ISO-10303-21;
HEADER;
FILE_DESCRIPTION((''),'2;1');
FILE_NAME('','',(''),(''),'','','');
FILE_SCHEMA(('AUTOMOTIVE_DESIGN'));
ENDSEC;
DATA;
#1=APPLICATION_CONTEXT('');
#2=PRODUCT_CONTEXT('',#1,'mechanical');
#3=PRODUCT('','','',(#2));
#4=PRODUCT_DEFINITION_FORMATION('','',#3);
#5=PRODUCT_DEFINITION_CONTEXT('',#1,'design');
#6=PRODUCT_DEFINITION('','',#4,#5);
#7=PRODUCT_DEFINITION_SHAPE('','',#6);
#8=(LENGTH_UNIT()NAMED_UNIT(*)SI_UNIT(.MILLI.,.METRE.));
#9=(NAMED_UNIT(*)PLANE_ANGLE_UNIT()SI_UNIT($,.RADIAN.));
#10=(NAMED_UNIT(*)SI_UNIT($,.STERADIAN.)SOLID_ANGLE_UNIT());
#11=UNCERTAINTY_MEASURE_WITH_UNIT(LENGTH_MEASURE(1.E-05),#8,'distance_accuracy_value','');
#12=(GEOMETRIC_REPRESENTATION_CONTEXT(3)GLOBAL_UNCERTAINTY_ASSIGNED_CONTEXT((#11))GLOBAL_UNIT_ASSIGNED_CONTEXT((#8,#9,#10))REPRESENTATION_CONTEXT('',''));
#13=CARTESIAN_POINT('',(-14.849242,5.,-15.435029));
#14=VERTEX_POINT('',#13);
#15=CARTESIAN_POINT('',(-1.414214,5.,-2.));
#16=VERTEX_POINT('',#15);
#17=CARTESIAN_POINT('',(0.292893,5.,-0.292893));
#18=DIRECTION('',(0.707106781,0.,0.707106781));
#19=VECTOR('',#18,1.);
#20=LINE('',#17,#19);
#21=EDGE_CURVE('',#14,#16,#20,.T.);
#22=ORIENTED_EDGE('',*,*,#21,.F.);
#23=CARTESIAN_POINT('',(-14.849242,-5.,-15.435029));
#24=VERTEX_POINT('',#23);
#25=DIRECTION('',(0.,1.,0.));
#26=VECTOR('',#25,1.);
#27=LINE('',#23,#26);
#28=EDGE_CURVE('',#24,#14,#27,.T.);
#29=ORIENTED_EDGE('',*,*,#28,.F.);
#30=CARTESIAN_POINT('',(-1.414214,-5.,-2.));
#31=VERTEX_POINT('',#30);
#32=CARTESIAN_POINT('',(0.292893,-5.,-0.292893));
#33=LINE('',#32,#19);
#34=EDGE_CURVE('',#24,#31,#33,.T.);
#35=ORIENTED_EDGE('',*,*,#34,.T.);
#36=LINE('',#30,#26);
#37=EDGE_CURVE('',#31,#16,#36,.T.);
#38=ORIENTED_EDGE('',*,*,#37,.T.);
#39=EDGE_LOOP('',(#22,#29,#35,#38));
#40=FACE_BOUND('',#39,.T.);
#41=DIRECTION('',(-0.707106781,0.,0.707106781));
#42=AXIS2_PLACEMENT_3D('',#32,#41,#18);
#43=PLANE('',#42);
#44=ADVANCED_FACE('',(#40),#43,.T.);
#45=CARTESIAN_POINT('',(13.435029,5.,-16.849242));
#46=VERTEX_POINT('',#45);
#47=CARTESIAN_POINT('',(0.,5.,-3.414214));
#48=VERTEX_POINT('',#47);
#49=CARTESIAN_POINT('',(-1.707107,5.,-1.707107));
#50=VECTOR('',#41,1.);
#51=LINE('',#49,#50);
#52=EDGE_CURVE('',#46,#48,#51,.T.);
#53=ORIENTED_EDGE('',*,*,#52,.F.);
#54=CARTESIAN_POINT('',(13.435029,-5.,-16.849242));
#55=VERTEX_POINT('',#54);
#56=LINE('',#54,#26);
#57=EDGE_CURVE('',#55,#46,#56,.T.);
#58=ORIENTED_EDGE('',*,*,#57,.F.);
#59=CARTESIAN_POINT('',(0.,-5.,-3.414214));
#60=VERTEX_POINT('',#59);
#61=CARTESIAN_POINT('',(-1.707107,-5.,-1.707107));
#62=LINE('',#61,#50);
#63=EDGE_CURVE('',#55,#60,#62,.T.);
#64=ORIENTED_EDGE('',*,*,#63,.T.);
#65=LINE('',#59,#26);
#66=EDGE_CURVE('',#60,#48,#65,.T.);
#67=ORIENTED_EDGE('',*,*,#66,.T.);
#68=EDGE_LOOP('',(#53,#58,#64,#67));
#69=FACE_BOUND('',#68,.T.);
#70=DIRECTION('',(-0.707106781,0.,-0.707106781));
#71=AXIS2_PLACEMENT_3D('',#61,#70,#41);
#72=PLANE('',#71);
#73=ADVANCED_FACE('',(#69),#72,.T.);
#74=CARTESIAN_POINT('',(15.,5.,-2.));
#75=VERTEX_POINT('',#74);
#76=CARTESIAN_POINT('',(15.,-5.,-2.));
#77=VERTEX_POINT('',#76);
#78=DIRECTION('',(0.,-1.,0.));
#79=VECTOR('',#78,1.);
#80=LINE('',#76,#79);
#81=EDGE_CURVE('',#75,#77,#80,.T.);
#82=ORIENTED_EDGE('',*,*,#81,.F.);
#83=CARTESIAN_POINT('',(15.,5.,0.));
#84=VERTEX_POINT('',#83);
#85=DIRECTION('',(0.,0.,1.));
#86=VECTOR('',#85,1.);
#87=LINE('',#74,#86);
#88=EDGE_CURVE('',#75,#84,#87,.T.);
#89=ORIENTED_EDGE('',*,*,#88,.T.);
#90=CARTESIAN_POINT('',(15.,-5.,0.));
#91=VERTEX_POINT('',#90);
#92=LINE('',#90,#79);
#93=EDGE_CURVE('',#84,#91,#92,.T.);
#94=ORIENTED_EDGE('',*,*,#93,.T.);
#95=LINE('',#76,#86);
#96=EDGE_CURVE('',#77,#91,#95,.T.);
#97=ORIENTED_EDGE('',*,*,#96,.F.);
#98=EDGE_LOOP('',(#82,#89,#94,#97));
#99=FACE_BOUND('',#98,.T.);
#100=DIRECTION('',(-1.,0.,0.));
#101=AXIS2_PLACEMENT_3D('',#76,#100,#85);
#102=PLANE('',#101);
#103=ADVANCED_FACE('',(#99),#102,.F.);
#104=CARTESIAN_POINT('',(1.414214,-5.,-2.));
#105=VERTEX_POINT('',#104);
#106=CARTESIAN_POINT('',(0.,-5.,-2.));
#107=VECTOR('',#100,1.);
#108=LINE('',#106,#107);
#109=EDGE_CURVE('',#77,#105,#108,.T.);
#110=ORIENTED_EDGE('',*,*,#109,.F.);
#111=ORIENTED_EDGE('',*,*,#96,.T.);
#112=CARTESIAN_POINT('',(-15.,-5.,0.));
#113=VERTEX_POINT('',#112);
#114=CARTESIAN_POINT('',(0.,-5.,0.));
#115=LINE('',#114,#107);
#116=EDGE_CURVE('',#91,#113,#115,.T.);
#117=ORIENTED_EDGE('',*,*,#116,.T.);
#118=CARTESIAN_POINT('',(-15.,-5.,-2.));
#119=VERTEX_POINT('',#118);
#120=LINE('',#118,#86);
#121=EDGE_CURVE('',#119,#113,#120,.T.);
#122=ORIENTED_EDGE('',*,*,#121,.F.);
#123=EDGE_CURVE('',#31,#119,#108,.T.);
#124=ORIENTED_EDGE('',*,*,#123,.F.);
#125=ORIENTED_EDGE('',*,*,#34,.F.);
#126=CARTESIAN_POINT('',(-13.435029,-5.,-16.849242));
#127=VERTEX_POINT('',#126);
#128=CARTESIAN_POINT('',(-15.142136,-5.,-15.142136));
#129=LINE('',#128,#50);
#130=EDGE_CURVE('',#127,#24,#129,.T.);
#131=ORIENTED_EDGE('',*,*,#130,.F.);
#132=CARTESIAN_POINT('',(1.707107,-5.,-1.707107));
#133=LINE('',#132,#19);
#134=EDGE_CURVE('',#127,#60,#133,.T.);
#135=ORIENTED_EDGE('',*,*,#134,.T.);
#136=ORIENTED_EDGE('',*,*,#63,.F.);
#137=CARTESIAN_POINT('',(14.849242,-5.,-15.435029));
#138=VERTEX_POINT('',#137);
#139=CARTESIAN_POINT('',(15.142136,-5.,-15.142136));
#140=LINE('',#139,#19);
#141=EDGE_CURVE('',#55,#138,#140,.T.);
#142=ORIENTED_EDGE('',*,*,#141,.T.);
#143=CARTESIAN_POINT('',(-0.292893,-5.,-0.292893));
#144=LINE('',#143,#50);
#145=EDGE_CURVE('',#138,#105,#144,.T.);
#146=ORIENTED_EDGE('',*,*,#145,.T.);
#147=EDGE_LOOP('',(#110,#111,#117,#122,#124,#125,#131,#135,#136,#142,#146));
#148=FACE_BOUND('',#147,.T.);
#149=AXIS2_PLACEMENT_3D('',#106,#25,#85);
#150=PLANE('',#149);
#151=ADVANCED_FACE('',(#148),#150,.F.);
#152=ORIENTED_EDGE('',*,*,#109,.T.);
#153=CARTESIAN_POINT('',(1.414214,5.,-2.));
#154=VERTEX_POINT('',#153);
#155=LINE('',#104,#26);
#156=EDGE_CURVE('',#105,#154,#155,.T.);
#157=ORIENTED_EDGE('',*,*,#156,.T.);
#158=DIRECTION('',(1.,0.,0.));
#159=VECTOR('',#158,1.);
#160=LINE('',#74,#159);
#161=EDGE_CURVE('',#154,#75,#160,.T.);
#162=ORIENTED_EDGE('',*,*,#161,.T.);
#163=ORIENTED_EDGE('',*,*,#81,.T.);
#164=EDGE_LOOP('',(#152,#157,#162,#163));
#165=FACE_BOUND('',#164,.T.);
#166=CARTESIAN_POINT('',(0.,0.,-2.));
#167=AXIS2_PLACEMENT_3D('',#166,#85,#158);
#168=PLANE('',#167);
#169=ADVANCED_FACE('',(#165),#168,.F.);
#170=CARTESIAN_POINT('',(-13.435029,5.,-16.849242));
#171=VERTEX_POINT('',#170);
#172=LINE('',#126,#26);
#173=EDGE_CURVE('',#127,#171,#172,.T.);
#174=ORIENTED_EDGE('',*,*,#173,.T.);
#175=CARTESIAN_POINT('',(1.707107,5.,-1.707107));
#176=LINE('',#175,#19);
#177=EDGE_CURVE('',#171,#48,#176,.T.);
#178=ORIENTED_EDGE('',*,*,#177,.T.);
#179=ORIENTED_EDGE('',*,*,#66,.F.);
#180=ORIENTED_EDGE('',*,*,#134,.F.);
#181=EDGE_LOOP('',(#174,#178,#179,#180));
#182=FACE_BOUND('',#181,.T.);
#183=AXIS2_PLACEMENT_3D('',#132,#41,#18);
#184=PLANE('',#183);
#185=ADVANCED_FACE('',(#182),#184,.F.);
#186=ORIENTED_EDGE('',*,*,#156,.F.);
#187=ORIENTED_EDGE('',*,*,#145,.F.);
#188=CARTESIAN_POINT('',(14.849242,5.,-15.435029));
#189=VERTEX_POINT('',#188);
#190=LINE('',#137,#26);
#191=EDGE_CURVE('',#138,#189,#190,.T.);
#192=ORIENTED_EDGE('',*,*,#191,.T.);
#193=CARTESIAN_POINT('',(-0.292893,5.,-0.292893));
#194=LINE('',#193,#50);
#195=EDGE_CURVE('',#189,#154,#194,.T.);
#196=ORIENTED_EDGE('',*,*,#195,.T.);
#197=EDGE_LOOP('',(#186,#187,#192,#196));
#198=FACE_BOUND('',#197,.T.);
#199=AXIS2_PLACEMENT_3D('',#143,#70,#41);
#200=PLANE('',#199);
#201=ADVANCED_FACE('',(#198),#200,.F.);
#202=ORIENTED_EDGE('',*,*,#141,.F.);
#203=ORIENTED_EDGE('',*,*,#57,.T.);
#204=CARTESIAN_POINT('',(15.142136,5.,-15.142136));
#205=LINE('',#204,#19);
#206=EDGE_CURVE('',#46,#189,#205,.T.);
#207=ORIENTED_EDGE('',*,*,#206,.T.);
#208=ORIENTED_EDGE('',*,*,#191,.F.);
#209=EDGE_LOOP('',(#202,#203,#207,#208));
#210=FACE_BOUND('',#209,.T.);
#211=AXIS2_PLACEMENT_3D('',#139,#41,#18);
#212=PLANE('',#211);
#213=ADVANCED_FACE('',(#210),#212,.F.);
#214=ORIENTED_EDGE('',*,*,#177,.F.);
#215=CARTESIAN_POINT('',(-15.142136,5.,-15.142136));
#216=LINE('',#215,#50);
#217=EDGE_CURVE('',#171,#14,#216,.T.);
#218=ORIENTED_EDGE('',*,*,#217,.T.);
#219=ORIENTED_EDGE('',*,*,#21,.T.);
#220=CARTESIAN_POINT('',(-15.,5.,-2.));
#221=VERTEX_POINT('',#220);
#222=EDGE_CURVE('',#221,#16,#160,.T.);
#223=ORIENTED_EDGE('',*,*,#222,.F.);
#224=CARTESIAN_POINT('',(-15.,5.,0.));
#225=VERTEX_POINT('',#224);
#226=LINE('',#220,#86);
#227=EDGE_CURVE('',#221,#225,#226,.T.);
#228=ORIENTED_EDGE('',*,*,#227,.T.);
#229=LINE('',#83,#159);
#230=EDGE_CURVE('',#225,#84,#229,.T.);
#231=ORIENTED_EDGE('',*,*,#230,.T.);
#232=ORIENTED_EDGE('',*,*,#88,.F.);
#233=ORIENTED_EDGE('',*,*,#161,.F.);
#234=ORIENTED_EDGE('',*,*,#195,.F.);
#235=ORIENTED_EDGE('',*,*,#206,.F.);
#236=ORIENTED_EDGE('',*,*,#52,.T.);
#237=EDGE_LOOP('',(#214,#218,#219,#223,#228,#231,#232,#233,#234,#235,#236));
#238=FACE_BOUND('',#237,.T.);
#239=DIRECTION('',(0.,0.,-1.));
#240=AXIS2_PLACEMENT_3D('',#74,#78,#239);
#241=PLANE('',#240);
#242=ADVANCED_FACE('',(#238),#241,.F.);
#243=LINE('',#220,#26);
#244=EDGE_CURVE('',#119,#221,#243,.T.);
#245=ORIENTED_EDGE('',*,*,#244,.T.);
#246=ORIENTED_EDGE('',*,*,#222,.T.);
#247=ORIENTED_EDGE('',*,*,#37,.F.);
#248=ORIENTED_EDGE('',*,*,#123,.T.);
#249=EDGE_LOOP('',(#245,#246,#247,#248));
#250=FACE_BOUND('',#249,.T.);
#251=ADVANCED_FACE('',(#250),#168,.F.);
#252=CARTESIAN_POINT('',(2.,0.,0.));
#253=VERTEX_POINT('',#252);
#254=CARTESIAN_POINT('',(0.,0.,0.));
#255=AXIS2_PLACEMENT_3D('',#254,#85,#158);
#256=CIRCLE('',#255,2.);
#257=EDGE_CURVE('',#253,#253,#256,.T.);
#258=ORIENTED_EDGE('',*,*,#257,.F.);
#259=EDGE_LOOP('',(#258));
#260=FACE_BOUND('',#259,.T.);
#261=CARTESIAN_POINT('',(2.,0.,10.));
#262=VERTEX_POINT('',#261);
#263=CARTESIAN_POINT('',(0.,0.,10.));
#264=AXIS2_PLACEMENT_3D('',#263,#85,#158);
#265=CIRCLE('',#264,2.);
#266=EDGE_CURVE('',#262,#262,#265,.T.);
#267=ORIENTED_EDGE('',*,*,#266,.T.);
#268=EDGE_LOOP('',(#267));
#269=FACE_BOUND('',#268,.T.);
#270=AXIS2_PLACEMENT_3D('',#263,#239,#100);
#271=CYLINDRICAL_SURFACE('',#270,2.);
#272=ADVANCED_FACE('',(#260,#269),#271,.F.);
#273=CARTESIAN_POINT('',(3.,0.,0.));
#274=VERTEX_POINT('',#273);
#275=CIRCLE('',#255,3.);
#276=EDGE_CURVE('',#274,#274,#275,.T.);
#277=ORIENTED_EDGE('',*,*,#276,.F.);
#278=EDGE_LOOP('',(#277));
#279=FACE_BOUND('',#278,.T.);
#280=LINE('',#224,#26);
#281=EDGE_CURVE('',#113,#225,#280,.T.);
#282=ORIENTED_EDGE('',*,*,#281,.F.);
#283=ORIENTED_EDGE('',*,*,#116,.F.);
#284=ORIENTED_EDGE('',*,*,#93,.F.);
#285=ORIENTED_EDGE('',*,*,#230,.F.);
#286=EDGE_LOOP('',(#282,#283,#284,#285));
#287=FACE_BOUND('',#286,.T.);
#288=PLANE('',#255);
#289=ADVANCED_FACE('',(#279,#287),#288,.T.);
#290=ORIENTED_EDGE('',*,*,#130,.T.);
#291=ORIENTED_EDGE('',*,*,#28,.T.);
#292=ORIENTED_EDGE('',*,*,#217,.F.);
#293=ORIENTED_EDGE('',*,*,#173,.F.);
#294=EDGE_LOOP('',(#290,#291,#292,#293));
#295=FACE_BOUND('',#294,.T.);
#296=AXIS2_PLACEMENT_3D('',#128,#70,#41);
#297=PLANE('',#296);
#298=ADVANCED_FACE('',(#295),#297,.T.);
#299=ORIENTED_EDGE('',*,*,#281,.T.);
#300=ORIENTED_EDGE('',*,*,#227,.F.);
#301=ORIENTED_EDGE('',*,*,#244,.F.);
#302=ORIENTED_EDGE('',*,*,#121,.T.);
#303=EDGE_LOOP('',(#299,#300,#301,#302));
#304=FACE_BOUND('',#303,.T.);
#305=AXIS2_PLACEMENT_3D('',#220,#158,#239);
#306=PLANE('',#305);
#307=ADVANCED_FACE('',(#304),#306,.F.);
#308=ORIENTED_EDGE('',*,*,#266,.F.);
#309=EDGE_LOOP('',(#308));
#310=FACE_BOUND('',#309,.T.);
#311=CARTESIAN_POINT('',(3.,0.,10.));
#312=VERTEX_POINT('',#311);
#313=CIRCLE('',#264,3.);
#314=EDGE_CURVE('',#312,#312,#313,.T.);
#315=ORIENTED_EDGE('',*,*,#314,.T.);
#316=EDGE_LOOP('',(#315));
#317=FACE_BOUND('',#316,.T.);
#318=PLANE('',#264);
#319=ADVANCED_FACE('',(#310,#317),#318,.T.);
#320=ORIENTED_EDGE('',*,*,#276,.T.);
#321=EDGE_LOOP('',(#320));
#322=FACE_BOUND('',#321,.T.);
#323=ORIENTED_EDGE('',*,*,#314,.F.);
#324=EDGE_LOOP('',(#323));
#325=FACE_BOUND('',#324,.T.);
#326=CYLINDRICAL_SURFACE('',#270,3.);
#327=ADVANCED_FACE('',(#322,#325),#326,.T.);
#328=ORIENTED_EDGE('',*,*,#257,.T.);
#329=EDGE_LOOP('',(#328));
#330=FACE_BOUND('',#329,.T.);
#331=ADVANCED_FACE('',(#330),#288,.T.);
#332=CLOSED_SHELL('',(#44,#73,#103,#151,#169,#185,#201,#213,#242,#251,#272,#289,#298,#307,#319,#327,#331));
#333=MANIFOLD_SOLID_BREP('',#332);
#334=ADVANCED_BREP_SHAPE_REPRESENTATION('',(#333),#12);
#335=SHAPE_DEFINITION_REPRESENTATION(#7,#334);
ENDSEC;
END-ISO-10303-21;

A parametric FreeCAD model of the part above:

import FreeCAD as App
import Part
import Sketcher

doc = App.newDocument("Part")
body = doc.addObject("PartDesign::Body", "Body")

# Sketch on XY plane
sketch1 = doc.addObject("Sketcher::SketchObject", "Sketch")
body.addObject(sketch1)
sketch1.AttachmentSupport = (doc.XY_Plane, [""])
sketch1.MapMode = "FlatFace"
sketch1.addGeometry([
    Part.Circle(App.Vector(0, 0, 0), App.Vector(0, 0, 1), 3),
    Part.Circle(App.Vector(0, 0, 0), App.Vector(0, 0, 1), 2),
], False)
sketch1.addConstraint([
    Sketcher.Constraint("Coincident", 0, 3, -1, 1),
    Sketcher.Constraint("Coincident", 1, 3, -1, 1),
    Sketcher.Constraint("Diameter", 0, 6.0),
    Sketcher.Constraint("Diameter", 1, 4.0),
])
pad1 = doc.addObject("PartDesign::Pad", "Pad")
body.addObject(pad1)
pad1.Profile = sketch1
pad1.Length = 10

# Sketch on XY plane
sketch2 = doc.addObject("Sketcher::SketchObject", "Sketch001")
body.addObject(sketch2)
sketch2.AttachmentSupport = (doc.XY_Plane, [""])
sketch2.MapMode = "FlatFace"
sketch2.addGeometry([
    Part.LineSegment(App.Vector(-15, -5, 0), App.Vector(-15, 5, 0)),
    Part.LineSegment(App.Vector(-15, 5, 0), App.Vector(15, 5, 0)),
    Part.LineSegment(App.Vector(15, 5, 0), App.Vector(15, -5, 0)),
    Part.LineSegment(App.Vector(15, -5, 0), App.Vector(-15, -5, 0)),
], False)
sketch2.addConstraint([
    Sketcher.Constraint("Coincident", 0, 2, 1, 1),
    Sketcher.Constraint("Coincident", 1, 2, 2, 1),
    Sketcher.Constraint("Coincident", 2, 2, 3, 1),
    Sketcher.Constraint("Coincident", 3, 2, 0, 1),
    Sketcher.Constraint("Vertical", 0),
    Sketcher.Constraint("Horizontal", 1),
    Sketcher.Constraint("Vertical", 2),
    Sketcher.Constraint("Horizontal", 3),
    Sketcher.Constraint("Symmetric", 0, 2, 2, 2, -1, 1),
    Sketcher.Constraint("DistanceX", 1, 1, 1, 2, 30.0),
    Sketcher.Constraint("DistanceY", 0, 1, 0, 2, 10.0),
])
pad2 = doc.addObject("PartDesign::Pad", "Pad001")
body.addObject(pad2)
pad2.Profile = sketch2
pad2.Length = 2
pad2.Reversed = True

# Sketch on XZ plane
sketch3 = doc.addObject("Sketcher::SketchObject", "Sketch002")
body.addObject(sketch3)
sketch3.AttachmentSupport = (doc.XZ_Plane, [""])
sketch3.MapMode = "FlatFace"
sketch3.AttachmentOffset = App.Placement(App.Vector(0, 0, -5), App.Rotation())
sketch3.addGeometry([
    Part.LineSegment(App.Vector(-0.707107, -1.292893, 0), App.Vector(0, -2, 0)),  # 0
    Part.LineSegment(App.Vector(0, -2, 0), App.Vector(0.707107, -1.292893, 0)),  # 1
    Part.LineSegment(App.Vector(0.707107, -1.292893, 0), App.Vector(14.849242, -15.435029, 0)),  # 2
    Part.LineSegment(App.Vector(14.849242, -15.435029, 0), App.Vector(13.435029, -16.849242, 0)),  # 3
    Part.LineSegment(App.Vector(13.435029, -16.849242, 0), App.Vector(0, -3.414214, 0)),  # 4
    Part.LineSegment(App.Vector(0, -3.414214, 0), App.Vector(-13.435029, -16.849242, 0)),  # 5
    Part.LineSegment(App.Vector(-13.435029, -16.849242, 0), App.Vector(-14.849242, -15.435029, 0)),  # 6
    Part.LineSegment(App.Vector(-14.849242, -15.435029, 0), App.Vector(-0.707107, -1.292893, 0)),  # 7
], False)
sketch3.addConstraint([
    Sketcher.Constraint("Coincident", 0, 2, 1, 1),
    Sketcher.Constraint("Coincident", 1, 2, 2, 1),
    Sketcher.Constraint("Coincident", 2, 2, 3, 1),
    Sketcher.Constraint("Coincident", 3, 2, 4, 1),
    Sketcher.Constraint("Coincident", 4, 2, 5, 1),
    Sketcher.Constraint("Coincident", 5, 2, 6, 1),
    Sketcher.Constraint("Coincident", 6, 2, 7, 1),
    Sketcher.Constraint("Coincident", 7, 2, 0, 1),
    Sketcher.Constraint("Symmetric", 3, 2, 5, 2, -2),
    Sketcher.Constraint("Symmetric", 2, 2, 6, 2, -2),
    Sketcher.Constraint("Symmetric", 1, 2, 7, 2, -2),
    Sketcher.Constraint("PointOnObject", 0, 2, -2),
    Sketcher.Constraint("PointOnObject", 4, 2, -2),
    Sketcher.Constraint("Perpendicular", 0, 1),
    Sketcher.Constraint("Perpendicular", 1, 2),
    Sketcher.Constraint("Perpendicular", 2, 3),
    Sketcher.Constraint("Perpendicular", 3, 4),
    Sketcher.Constraint("Distance", 0, 1.0),
    Sketcher.Constraint("Distance", 2, 20.0),
    Sketcher.Constraint("Distance", 3, 2.0),
    Sketcher.Constraint("DistanceY", 0, 2, -1, 1, 2.0),
])
pad3 = doc.addObject("PartDesign::Pad", "Pad002")
body.addObject(pad3)
pad3.Profile = sketch3
pad3.Length = 10

doc.recompute()
